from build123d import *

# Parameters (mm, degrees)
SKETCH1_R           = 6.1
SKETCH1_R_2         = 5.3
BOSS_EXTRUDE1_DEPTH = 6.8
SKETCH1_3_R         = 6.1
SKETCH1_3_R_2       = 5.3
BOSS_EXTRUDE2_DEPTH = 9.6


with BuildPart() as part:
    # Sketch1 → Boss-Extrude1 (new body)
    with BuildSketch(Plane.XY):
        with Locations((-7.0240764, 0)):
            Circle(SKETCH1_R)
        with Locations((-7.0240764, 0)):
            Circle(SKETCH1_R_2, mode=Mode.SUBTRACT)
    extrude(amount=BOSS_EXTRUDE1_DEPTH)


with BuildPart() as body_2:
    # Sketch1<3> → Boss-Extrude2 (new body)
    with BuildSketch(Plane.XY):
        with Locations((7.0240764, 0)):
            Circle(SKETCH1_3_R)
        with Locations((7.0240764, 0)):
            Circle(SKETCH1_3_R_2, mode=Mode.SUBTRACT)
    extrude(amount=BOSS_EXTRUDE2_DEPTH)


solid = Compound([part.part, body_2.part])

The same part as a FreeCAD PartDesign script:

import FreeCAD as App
import Part
import Sketcher

V = App.Vector

doc = App.newDocument("Part")
body = doc.addObject("PartDesign::Body", "Body")

# Sketch on XY plane
sketch1 = doc.addObject("Sketcher::SketchObject", "Sketch")
body.addObject(sketch1)
sketch1.AttachmentSupport = (doc.XY_Plane, [""])
sketch1.MapMode = "FlatFace"
sketch1.addGeometry(Part.Circle(V(-7, 0, 0), V(0, 0, 1), 6), False)
sketch1.addGeometry(Part.Circle(V(-7, 0, 0), V(0, 0, 1), 5), False)
sketch1.addConstraint(Sketcher.Constraint("Coincident", 1, 3, 0, 3))
sketch1.addConstraint(Sketcher.Constraint("PointOnObject", 0, 3, -1))
sketch1.addConstraint(Sketcher.Constraint("Diameter", 0, 12.2))
sketch1.addConstraint(Sketcher.Constraint("Diameter", 1, 10.6))
sketch1.addConstraint(Sketcher.Constraint("DistanceX", 0, 3, -1, 1, 7.024076))
pad1 = doc.addObject("PartDesign::Pad", "Pad")
body.addObject(pad1)
pad1.Profile = sketch1
pad1.Length = 6.8
body2 = doc.addObject("PartDesign::Body", "Body001")

# Sketch on XY plane
sketch2 = doc.addObject("Sketcher::SketchObject", "Sketch001")
body2.addObject(sketch2)
sketch2.AttachmentSupport = (doc.getObject("XY_Plane001"), [""])
sketch2.MapMode = "FlatFace"
sketch2.addGeometry(Part.Circle(V(7, 0, 0), V(0, 0, 1), 6), False)
sketch2.addGeometry(Part.Circle(V(7, 0, 0), V(0, 0, 1), 5), False)
sketch2.addConstraint(Sketcher.Constraint("Coincident", 1, 3, 0, 3))
sketch2.addConstraint(Sketcher.Constraint("PointOnObject", 0, 3, -1))
sketch2.addConstraint(Sketcher.Constraint("Diameter", 0, 12.2))
sketch2.addConstraint(Sketcher.Constraint("Diameter", 1, 10.6))
sketch2.addConstraint(Sketcher.Constraint("DistanceX", -1, 1, 0, 3, 7.024076))
pad2 = doc.addObject("PartDesign::Pad", "Pad001")
body2.addObject(pad2)
pad2.Profile = sketch2
pad2.Length = 9.6

doc.recompute()
